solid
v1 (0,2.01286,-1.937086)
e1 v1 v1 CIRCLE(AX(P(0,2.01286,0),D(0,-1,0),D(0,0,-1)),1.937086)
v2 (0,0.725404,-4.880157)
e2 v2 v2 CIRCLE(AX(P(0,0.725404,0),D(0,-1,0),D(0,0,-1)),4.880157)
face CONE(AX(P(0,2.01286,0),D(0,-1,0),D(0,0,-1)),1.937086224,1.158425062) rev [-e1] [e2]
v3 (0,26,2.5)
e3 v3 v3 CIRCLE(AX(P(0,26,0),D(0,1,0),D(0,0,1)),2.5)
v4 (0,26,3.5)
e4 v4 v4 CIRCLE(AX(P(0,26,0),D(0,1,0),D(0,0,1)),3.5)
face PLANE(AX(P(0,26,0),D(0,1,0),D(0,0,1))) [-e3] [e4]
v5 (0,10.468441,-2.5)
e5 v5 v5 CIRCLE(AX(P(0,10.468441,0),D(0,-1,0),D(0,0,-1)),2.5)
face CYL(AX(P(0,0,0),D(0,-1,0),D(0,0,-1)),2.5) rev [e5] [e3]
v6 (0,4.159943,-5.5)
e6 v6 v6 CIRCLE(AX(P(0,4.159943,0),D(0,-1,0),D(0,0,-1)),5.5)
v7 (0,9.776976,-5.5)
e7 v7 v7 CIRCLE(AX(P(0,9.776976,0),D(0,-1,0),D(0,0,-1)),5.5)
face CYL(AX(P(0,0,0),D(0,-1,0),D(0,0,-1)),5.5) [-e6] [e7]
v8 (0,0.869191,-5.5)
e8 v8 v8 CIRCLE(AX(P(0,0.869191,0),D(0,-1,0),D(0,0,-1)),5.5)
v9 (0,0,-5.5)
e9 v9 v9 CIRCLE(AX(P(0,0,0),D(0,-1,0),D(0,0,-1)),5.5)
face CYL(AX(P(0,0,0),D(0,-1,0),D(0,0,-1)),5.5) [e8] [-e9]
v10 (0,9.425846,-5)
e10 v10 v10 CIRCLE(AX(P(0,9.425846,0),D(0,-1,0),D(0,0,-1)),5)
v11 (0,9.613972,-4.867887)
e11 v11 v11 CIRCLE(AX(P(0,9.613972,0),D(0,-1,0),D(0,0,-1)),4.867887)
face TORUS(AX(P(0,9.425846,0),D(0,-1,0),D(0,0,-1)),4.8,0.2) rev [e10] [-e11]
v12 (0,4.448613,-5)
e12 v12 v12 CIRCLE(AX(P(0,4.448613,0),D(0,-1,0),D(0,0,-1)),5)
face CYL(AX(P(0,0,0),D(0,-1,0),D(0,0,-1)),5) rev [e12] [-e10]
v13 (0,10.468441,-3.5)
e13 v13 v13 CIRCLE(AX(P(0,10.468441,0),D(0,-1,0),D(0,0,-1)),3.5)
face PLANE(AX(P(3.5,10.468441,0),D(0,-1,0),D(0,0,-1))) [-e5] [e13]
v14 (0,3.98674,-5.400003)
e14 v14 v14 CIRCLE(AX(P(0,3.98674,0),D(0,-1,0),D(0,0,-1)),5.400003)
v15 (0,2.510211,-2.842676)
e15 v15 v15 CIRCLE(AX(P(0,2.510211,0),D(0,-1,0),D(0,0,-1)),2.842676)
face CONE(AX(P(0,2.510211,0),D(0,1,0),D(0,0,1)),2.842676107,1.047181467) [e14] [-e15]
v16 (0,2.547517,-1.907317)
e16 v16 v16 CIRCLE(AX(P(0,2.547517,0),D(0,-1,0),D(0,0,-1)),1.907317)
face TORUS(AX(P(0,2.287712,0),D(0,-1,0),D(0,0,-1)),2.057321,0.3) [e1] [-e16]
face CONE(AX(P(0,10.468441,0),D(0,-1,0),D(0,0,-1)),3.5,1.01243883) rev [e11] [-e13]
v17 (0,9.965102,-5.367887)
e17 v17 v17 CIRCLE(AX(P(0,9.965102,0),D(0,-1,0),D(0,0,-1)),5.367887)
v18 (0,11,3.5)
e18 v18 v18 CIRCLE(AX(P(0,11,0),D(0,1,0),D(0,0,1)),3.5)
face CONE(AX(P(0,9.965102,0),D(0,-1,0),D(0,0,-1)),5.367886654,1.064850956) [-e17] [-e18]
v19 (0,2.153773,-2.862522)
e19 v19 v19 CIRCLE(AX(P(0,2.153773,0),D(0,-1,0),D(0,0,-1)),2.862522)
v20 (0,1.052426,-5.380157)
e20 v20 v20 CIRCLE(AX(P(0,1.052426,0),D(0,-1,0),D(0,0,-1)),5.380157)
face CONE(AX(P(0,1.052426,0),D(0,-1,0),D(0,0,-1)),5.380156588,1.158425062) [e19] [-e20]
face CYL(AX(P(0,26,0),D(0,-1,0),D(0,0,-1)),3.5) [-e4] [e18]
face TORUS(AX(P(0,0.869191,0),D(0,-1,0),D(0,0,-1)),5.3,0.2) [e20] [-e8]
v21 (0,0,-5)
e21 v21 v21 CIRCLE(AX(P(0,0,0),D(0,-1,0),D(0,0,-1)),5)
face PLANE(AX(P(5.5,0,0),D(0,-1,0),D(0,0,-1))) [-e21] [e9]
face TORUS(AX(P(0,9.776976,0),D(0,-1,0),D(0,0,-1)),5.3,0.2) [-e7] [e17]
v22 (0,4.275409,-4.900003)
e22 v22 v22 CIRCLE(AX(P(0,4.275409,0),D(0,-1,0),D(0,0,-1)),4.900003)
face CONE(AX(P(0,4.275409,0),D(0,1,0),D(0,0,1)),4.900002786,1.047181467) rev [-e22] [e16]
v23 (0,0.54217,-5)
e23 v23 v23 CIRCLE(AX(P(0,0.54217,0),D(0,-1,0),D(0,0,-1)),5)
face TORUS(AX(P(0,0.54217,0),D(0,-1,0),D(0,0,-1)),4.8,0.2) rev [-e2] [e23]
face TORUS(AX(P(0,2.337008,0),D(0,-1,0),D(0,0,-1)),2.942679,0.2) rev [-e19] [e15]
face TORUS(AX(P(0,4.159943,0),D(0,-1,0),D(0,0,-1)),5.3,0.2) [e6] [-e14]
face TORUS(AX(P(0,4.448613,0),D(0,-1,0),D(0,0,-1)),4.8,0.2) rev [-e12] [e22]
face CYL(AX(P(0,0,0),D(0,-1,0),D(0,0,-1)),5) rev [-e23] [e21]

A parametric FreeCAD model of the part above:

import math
import FreeCAD as App
import Part
import Sketcher

V = App.Vector
Q = App.Units.Quantity

doc = App.newDocument("Part")
params = doc.addObject("Spreadsheet::Sheet", "Params")
for row, (alias, value) in enumerate([
    ("sketch1_radius", "0.2 mm"),
    ("sketch1_radius2", "0.3 mm"),
    ("sketch1_width", "1 mm"),
    ("sketch1_width2", "0.5 mm"),
    ("revolution_angle", "360 deg"),
    ("sketch2_diameter", "7 mm"),
    ("sketch2_diameter2", "5 mm"),
    ("pad1_length", "15 mm"),
], start=1):
    params.set(f"A{row}", alias)
    params.set(f"B{row}", "=" + value)
    params.setAlias(f"B{row}", alias)

body = doc.addObject("PartDesign::Body", "Body")

sketch1 = body.newObject("Sketcher::SketchObject", "Sketch")
sketch1.AttachmentSupport = (doc.getObject("XY_Plane"), [""])
sketch1.MapMode = "FlatFace"
sketch1.addGeometry([
    Part.LineSegment(V(5.5, 4.16, 0), V(5.5, 9.78, 0)),
    Part.ArcOfCircle(Part.Circle(V(5.3, 9.78, 0), V(0, 0, 1), 0.2), math.radians(0), math.radians(70)),
    Part.LineSegment(V(5.37, 9.97, 0), V(3.5, 11, 0)),
    Part.LineSegment(V(3.5, 11, 0), V(2.5, 11, 0)),
    Part.LineSegment(V(2.5, 11, 0), V(2.5, 10.47, 0)),
    Part.LineSegment(V(2.5, 10.47, 0), V(3.5, 10.47, 0)),
    Part.LineSegment(V(3.5, 10.47, 0), V(4.87, 9.61, 0)),
    Part.ArcOfCircle(Part.Circle(V(4.8, 9.43, 0), V(0, 0, 1), 0.2), math.radians(0), math.radians(70)),
    Part.LineSegment(V(5, 9.43, 0), V(5, 4.45, 0)),
    Part.ArcOfCircle(Part.Circle(V(4.8, 4.45, 0), V(0, 0, 1), 0.2), math.radians(-60), math.radians(0)),
    Part.LineSegment(V(4.9, 4.28, 0), V(1.91, 2.55, 0)),
    Part.ArcOfCircle(Part.Circle(V(2.06, 2.29, 0), V(0, 0, 1), 0.3), math.radians(120), math.radians(246)),
    Part.LineSegment(V(1.94, 2.01, 0), V(4.88, 0.73, 0)),
    Part.ArcOfCircle(Part.Circle(V(4.8, 0.54, 0), V(0, 0, 1), 0.2), math.radians(0), math.radians(66)),
    Part.LineSegment(V(5, 0.54, 0), V(5, 0, 0)),
    Part.LineSegment(V(5, 0, 0), V(5.5, 0, 0)),
    Part.LineSegment(V(5.5, 0, 0), V(5.5, 0.87, 0)),
    Part.ArcOfCircle(Part.Circle(V(5.3, 0.87, 0), V(0, 0, 1), 0.2), math.radians(0), math.radians(66)),
    Part.LineSegment(V(5.38, 1.05, 0), V(2.86, 2.15, 0)),
    Part.ArcOfCircle(Part.Circle(V(2.94, 2.34, 0), V(0, 0, 1), 0.2), math.radians(120), math.radians(246)),
    Part.LineSegment(V(2.84, 2.51, 0), V(5.4, 3.99, 0)),
    Part.ArcOfCircle(Part.Circle(V(5.3, 4.16, 0), V(0, 0, 1), 0.2), math.radians(-60), math.radians(0)),
], False)
sketch1.addConstraint([
    Sketcher.Constraint("Tangent", 0, 2, 1, 1),
    Sketcher.Constraint("Coincident", 1, 2, 2, 1),
    Sketcher.Constraint("Coincident", 2, 2, 3, 1),
    Sketcher.Constraint("Coincident", 3, 2, 4, 1),
    Sketcher.Constraint("Coincident", 4, 2, 5, 1),
    Sketcher.Constraint("Coincident", 5, 2, 6, 1),
    Sketcher.Constraint("Coincident", 6, 2, 7, 2),
    Sketcher.Constraint("Tangent", 7, 1, 8, 1),
    Sketcher.Constraint("Tangent", 8, 2, 9, 2),
    Sketcher.Constraint("Tangent", 9, 1, 10, 1),
    Sketcher.Constraint("Tangent", 10, 2, 11, 1),
    Sketcher.Constraint("Tangent", 11, 2, 12, 1),
    Sketcher.Constraint("Tangent", 12, 2, 13, 2),
    Sketcher.Constraint("Tangent", 13, 1, 14, 1),
    Sketcher.Constraint("Coincident", 14, 2, 15, 1),
    Sketcher.Constraint("Coincident", 15, 2, 16, 1),
    Sketcher.Constraint("Tangent", 16, 2, 17, 1),
    Sketcher.Constraint("Tangent", 17, 2, 18, 1),
    Sketcher.Constraint("Tangent", 18, 2, 19, 2),
    Sketcher.Constraint("Tangent", 19, 1, 20, 1),
    Sketcher.Constraint("Tangent", 20, 2, 21, 1),
    Sketcher.Constraint("Tangent", 21, 2, 0, 1),
    Sketcher.Constraint("Vertical", 0),
    Sketcher.Constraint("Horizontal", 3),
    Sketcher.Constraint("Vertical", 4),
    Sketcher.Constraint("Horizontal", 5),
    Sketcher.Constraint("Vertical", 8),
    Sketcher.Constraint("Vertical", 14),
    Sketcher.Constraint("Horizontal", 15),
    Sketcher.Constraint("Vertical", 16),
    Sketcher.Constraint("Equal", 1, 7),
    Sketcher.Constraint("Equal", 7, 9),
    Sketcher.Constraint("Equal", 9, 13),
    Sketcher.Constraint("Equal", 13, 17),
    Sketcher.Constraint("Equal", 17, 19),
    Sketcher.Constraint("Equal", 19, 21),
    Sketcher.Constraint("PointOnObject", 14, 2, -1),
    Sketcher.Constraint("Parallel", 12, 18),
    Sketcher.Constraint("Parallel", 10, 20),
    Sketcher.Constraint("Vertical", 9, 3, 13, 3),
    Sketcher.Constraint("Vertical", 1, 3, 17, 3),
    Sketcher.Constraint("Vertical", 2, 2, 5, 2),
    Sketcher.Constraint("Radius", 1, Q("0.2 mm")),
    Sketcher.Constraint("Radius", 11, Q("0.3 mm")),
    Sketcher.Constraint("DistanceX", 3, 2, 3, 1, Q("1 mm")),
    Sketcher.Constraint("DistanceX", 15, 1, 15, 2, Q("0.5 mm")),
    Sketcher.Constraint("DistanceY", -1, 1, 2, 2, Q("11 mm")),
    Sketcher.Constraint("DistanceX", -1, 1, 7, 1, Q("5 mm")),
    Sketcher.Constraint("DistanceX", 2, 2, 0, 2, Q("2 mm")),
    Sketcher.Constraint("DistanceX", 6, 2, 1, 2, Q("0.5 mm")),
    Sketcher.Constraint("DistanceY", 4, 2, 4, 1, Q("0.531559 mm")),
    Sketcher.Constraint("DistanceY", 14, 2, 14, 1, Q("0.54217 mm")),
    Sketcher.Constraint("DistanceY", 16, 1, 16, 2, Q("0.869191 mm")),
    Sketcher.Constraint("DistanceY", 11, 3, 9, 3, Q("2.160901 mm")),
    Sketcher.Constraint("DistanceY", 19, 3, 9, 1, Q("1.938401 mm")),
    Sketcher.Constraint("DistanceX", 11, 3, 18, 2, Q("0.805201 mm")),
    Sketcher.Constraint("Distance", 2, Q("2.135419 mm")),
    Sketcher.Constraint("Distance", 10, Q("3.455688 mm")),
    Sketcher.Constraint("DistanceY", 0, 1, 0, 2, Q("5.617033 mm")),
    Sketcher.Constraint("DistanceY", 8, 2, 8, 1, Q("4.977233 mm")),
])
sketch1.setExpression("Constraints[42]", "Params.sketch1_radius")
sketch1.setExpression("Constraints[43]", "Params.sketch1_radius2")
sketch1.setExpression("Constraints[44]", "Params.sketch1_width")
sketch1.setExpression("Constraints[45]", "Params.sketch1_width2")
revolution = body.newObject("PartDesign::Revolution", "Revolution")
revolution.Profile = sketch1
revolution.ReferenceAxis = (sketch1, ["V_Axis"])
revolution.setExpression("Angle", "Params.revolution_angle")

sketch2 = body.newObject("Sketcher::SketchObject", "Sketch001")
sketch2.AttachmentSupport = (doc.getObject("XZ_Plane"), [""])
sketch2.MapMode = "FlatFace"
sketch2.AttachmentOffset = App.Placement(V(0, 0, -26), App.Rotation())
sketch2.addGeometry([
    Part.Circle(V(0, 0, 0), V(0, 0, 1), 3.5),
    Part.Circle(V(0, 0, 0), V(0, 0, 1), 2.5),
], False)
sketch2.addConstraint([
    Sketcher.Constraint("Coincident", 0, 3, -1, 1),
    Sketcher.Constraint("Coincident", 1, 3, -1, 1),
    Sketcher.Constraint("Diameter", 0, Q("7 mm")),
    Sketcher.Constraint("Diameter", 1, Q("5 mm")),
])
sketch2.setExpression("Constraints[2]", "Params.sketch2_diameter")
sketch2.setExpression("Constraints[3]", "Params.sketch2_diameter2")
pad1 = body.newObject("PartDesign::Pad", "Pad")
pad1.Profile = sketch2
pad1.setExpression("Length", "Params.pad1_length")

doc.recompute()
